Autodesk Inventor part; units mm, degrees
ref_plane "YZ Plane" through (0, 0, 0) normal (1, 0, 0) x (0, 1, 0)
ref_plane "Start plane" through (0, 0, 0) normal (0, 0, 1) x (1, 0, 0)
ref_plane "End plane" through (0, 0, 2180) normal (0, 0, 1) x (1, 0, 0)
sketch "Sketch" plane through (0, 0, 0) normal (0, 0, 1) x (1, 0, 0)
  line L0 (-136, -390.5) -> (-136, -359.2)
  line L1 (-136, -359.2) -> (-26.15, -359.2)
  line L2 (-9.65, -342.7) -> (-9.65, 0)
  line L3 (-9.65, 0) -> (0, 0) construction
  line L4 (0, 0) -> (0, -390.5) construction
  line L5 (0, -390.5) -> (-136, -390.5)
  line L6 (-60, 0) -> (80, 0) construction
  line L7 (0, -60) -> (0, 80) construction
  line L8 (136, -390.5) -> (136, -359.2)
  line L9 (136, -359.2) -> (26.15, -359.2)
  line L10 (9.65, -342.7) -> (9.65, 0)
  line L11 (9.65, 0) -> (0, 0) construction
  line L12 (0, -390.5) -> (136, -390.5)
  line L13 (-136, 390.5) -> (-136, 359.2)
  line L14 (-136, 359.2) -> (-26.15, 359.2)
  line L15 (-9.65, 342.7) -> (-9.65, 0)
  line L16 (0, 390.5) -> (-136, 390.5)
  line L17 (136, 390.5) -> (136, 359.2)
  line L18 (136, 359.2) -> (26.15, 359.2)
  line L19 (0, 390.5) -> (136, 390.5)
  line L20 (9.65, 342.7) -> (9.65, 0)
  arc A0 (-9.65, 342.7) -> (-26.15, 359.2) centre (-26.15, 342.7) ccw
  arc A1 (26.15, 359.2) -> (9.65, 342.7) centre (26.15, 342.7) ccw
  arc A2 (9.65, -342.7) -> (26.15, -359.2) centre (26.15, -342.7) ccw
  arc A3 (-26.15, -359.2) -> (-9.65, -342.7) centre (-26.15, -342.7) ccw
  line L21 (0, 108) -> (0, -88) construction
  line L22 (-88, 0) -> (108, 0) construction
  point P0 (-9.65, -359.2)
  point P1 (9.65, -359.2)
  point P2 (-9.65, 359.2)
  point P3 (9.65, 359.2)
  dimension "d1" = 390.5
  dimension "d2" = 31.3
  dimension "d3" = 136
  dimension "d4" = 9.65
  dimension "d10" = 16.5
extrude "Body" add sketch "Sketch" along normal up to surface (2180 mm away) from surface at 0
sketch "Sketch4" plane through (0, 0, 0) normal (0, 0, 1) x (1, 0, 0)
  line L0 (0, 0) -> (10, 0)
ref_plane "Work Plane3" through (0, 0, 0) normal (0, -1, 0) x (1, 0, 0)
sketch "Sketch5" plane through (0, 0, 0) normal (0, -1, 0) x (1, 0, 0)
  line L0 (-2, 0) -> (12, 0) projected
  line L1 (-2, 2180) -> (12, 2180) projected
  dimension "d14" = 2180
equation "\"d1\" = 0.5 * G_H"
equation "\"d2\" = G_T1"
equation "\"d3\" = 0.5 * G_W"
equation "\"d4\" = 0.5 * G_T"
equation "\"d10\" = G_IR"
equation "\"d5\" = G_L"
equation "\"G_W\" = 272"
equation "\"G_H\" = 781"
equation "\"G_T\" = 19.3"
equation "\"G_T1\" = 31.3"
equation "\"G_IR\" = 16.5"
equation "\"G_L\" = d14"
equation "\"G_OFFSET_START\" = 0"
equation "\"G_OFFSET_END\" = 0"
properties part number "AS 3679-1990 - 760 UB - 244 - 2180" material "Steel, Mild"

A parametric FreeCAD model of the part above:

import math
import FreeCAD as App
import Part
import Sketcher

V = App.Vector

doc = App.newDocument("Part")
body = doc.addObject("PartDesign::Body", "Body")

sketch1 = body.newObject("Sketcher::SketchObject", "Sketch")
sketch1.AttachmentSupport = (doc.getObject("XY_Plane"), [""])
sketch1.MapMode = "FlatFace"
sketch1.addGeometry(Part.LineSegment(V(-136, -359, 0), V(-136, -390, 0)), False)
sketch1.addGeometry(Part.LineSegment(V(-136, -390, 0), V(136, -390, 0)), False)
sketch1.addGeometry(Part.LineSegment(V(136, -390, 0), V(136, -359, 0)), False)
sketch1.addGeometry(Part.LineSegment(V(136, -359, 0), V(26, -359, 0)), False)
sketch1.addGeometry(Part.ArcOfCircle(Part.Circle(V(26, -343, 0), V(0, 0, 1), 16), math.radians(180), math.radians(270)), False)
sketch1.addGeometry(Part.LineSegment(V(10, -343, 0), V(10, 343, 0)), False)
sketch1.addGeometry(Part.ArcOfCircle(Part.Circle(V(26, 343, 0), V(0, 0, 1), 16), math.radians(90), math.radians(180)), False)
sketch1.addGeometry(Part.LineSegment(V(26, 359, 0), V(136, 359, 0)), False)
sketch1.addGeometry(Part.LineSegment(V(136, 359, 0), V(136, 390, 0)), False)
sketch1.addGeometry(Part.LineSegment(V(136, 390, 0), V(-136, 390, 0)), False)
sketch1.addGeometry(Part.LineSegment(V(-136, 390, 0), V(-136, 359, 0)), False)
sketch1.addGeometry(Part.LineSegment(V(-136, 359, 0), V(-26, 359, 0)), False)
sketch1.addGeometry(Part.ArcOfCircle(Part.Circle(V(-26, 343, 0), V(0, 0, 1), 16), math.radians(0), math.radians(90)), False)
sketch1.addGeometry(Part.LineSegment(V(-10, 343, 0), V(-10, -343, 0)), False)
sketch1.addGeometry(Part.ArcOfCircle(Part.Circle(V(-26, -343, 0), V(0, 0, 1), 16), math.radians(-90), math.radians(0)), False)
sketch1.addGeometry(Part.LineSegment(V(-26, -359, 0), V(-136, -359, 0)), False)
sketch1.addConstraint(Sketcher.Constraint("Coincident", 0, 2, 1, 1))
sketch1.addConstraint(Sketcher.Constraint("Coincident", 1, 2, 2, 1))
sketch1.addConstraint(Sketcher.Constraint("Coincident", 2, 2, 3, 1))
sketch1.addConstraint(Sketcher.Constraint("Tangent", 3, 2, 4, 2))
sketch1.addConstraint(Sketcher.Constraint("Tangent", 4, 1, 5, 1))
sketch1.addConstraint(Sketcher.Constraint("Tangent", 5, 2, 6, 2))
sketch1.addConstraint(Sketcher.Constraint("Tangent", 6, 1, 7, 1))
sketch1.addConstraint(Sketcher.Constraint("Coincident", 7, 2, 8, 1))
sketch1.addConstraint(Sketcher.Constraint("Coincident", 8, 2, 9, 1))
sketch1.addConstraint(Sketcher.Constraint("Coincident", 9, 2, 10, 1))
sketch1.addConstraint(Sketcher.Constraint("Coincident", 10, 2, 11, 1))
sketch1.addConstraint(Sketcher.Constraint("Tangent", 11, 2, 12, 2))
sketch1.addConstraint(Sketcher.Constraint("Tangent", 12, 1, 13, 1))
sketch1.addConstraint(Sketcher.Constraint("Tangent", 13, 2, 14, 2))
sketch1.addConstraint(Sketcher.Constraint("Tangent", 14, 1, 15, 1))
sketch1.addConstraint(Sketcher.Constraint("Coincident", 15, 2, 0, 1))
sketch1.addConstraint(Sketcher.Constraint("Vertical", 0))
sketch1.addConstraint(Sketcher.Constraint("Horizontal", 1))
sketch1.addConstraint(Sketcher.Constraint("Vertical", 2))
sketch1.addConstraint(Sketcher.Constraint("Horizontal", 3))
sketch1.addConstraint(Sketcher.Constraint("Vertical", 5))
sketch1.addConstraint(Sketcher.Constraint("Horizontal", 7))
sketch1.addConstraint(Sketcher.Constraint("Vertical", 8))
sketch1.addConstraint(Sketcher.Constraint("Horizontal", 9))
sketch1.addConstraint(Sketcher.Constraint("Vertical", 10))
sketch1.addConstraint(Sketcher.Constraint("Horizontal", 11))
sketch1.addConstraint(Sketcher.Constraint("Vertical", 13))
sketch1.addConstraint(Sketcher.Constraint("Horizontal", 15))
sketch1.addConstraint(Sketcher.Constraint("Equal", 4, 6))
sketch1.addConstraint(Sketcher.Constraint("Equal", 6, 12))
sketch1.addConstraint(Sketcher.Constraint("Equal", 12, 14))
sketch1.addConstraint(Sketcher.Constraint("Symmetric", 4, 3, 12, 3, -1, 1))
sketch1.addConstraint(Sketcher.Constraint("Symmetric", 0, 2, 8, 2, -1, 1))
sketch1.addConstraint(Sketcher.Constraint("Symmetric", 7, 2, 10, 2, -2))
sketch1.addConstraint(Sketcher.Constraint("Symmetric", 2, 2, 15, 2, -2))
sketch1.addConstraint(Sketcher.Constraint("Radius", 4, 16.5))
sketch1.addConstraint(Sketcher.Constraint("DistanceY", 0, 2, 0, 1, 31.3))
sketch1.addConstraint(Sketcher.Constraint("DistanceX", 0, 2, -1, 1, 136.0))
sketch1.addConstraint(Sketcher.Constraint("DistanceY", 0, 2, -1, 1, 390.5))
sketch1.addConstraint(Sketcher.Constraint("DistanceX", -1, 1, 4, 1, 9.65))
pad1 = body.newObject("PartDesign::Pad", "Pad")
pad1.Profile = sketch1
pad1.Length = 2180

doc.recompute()
